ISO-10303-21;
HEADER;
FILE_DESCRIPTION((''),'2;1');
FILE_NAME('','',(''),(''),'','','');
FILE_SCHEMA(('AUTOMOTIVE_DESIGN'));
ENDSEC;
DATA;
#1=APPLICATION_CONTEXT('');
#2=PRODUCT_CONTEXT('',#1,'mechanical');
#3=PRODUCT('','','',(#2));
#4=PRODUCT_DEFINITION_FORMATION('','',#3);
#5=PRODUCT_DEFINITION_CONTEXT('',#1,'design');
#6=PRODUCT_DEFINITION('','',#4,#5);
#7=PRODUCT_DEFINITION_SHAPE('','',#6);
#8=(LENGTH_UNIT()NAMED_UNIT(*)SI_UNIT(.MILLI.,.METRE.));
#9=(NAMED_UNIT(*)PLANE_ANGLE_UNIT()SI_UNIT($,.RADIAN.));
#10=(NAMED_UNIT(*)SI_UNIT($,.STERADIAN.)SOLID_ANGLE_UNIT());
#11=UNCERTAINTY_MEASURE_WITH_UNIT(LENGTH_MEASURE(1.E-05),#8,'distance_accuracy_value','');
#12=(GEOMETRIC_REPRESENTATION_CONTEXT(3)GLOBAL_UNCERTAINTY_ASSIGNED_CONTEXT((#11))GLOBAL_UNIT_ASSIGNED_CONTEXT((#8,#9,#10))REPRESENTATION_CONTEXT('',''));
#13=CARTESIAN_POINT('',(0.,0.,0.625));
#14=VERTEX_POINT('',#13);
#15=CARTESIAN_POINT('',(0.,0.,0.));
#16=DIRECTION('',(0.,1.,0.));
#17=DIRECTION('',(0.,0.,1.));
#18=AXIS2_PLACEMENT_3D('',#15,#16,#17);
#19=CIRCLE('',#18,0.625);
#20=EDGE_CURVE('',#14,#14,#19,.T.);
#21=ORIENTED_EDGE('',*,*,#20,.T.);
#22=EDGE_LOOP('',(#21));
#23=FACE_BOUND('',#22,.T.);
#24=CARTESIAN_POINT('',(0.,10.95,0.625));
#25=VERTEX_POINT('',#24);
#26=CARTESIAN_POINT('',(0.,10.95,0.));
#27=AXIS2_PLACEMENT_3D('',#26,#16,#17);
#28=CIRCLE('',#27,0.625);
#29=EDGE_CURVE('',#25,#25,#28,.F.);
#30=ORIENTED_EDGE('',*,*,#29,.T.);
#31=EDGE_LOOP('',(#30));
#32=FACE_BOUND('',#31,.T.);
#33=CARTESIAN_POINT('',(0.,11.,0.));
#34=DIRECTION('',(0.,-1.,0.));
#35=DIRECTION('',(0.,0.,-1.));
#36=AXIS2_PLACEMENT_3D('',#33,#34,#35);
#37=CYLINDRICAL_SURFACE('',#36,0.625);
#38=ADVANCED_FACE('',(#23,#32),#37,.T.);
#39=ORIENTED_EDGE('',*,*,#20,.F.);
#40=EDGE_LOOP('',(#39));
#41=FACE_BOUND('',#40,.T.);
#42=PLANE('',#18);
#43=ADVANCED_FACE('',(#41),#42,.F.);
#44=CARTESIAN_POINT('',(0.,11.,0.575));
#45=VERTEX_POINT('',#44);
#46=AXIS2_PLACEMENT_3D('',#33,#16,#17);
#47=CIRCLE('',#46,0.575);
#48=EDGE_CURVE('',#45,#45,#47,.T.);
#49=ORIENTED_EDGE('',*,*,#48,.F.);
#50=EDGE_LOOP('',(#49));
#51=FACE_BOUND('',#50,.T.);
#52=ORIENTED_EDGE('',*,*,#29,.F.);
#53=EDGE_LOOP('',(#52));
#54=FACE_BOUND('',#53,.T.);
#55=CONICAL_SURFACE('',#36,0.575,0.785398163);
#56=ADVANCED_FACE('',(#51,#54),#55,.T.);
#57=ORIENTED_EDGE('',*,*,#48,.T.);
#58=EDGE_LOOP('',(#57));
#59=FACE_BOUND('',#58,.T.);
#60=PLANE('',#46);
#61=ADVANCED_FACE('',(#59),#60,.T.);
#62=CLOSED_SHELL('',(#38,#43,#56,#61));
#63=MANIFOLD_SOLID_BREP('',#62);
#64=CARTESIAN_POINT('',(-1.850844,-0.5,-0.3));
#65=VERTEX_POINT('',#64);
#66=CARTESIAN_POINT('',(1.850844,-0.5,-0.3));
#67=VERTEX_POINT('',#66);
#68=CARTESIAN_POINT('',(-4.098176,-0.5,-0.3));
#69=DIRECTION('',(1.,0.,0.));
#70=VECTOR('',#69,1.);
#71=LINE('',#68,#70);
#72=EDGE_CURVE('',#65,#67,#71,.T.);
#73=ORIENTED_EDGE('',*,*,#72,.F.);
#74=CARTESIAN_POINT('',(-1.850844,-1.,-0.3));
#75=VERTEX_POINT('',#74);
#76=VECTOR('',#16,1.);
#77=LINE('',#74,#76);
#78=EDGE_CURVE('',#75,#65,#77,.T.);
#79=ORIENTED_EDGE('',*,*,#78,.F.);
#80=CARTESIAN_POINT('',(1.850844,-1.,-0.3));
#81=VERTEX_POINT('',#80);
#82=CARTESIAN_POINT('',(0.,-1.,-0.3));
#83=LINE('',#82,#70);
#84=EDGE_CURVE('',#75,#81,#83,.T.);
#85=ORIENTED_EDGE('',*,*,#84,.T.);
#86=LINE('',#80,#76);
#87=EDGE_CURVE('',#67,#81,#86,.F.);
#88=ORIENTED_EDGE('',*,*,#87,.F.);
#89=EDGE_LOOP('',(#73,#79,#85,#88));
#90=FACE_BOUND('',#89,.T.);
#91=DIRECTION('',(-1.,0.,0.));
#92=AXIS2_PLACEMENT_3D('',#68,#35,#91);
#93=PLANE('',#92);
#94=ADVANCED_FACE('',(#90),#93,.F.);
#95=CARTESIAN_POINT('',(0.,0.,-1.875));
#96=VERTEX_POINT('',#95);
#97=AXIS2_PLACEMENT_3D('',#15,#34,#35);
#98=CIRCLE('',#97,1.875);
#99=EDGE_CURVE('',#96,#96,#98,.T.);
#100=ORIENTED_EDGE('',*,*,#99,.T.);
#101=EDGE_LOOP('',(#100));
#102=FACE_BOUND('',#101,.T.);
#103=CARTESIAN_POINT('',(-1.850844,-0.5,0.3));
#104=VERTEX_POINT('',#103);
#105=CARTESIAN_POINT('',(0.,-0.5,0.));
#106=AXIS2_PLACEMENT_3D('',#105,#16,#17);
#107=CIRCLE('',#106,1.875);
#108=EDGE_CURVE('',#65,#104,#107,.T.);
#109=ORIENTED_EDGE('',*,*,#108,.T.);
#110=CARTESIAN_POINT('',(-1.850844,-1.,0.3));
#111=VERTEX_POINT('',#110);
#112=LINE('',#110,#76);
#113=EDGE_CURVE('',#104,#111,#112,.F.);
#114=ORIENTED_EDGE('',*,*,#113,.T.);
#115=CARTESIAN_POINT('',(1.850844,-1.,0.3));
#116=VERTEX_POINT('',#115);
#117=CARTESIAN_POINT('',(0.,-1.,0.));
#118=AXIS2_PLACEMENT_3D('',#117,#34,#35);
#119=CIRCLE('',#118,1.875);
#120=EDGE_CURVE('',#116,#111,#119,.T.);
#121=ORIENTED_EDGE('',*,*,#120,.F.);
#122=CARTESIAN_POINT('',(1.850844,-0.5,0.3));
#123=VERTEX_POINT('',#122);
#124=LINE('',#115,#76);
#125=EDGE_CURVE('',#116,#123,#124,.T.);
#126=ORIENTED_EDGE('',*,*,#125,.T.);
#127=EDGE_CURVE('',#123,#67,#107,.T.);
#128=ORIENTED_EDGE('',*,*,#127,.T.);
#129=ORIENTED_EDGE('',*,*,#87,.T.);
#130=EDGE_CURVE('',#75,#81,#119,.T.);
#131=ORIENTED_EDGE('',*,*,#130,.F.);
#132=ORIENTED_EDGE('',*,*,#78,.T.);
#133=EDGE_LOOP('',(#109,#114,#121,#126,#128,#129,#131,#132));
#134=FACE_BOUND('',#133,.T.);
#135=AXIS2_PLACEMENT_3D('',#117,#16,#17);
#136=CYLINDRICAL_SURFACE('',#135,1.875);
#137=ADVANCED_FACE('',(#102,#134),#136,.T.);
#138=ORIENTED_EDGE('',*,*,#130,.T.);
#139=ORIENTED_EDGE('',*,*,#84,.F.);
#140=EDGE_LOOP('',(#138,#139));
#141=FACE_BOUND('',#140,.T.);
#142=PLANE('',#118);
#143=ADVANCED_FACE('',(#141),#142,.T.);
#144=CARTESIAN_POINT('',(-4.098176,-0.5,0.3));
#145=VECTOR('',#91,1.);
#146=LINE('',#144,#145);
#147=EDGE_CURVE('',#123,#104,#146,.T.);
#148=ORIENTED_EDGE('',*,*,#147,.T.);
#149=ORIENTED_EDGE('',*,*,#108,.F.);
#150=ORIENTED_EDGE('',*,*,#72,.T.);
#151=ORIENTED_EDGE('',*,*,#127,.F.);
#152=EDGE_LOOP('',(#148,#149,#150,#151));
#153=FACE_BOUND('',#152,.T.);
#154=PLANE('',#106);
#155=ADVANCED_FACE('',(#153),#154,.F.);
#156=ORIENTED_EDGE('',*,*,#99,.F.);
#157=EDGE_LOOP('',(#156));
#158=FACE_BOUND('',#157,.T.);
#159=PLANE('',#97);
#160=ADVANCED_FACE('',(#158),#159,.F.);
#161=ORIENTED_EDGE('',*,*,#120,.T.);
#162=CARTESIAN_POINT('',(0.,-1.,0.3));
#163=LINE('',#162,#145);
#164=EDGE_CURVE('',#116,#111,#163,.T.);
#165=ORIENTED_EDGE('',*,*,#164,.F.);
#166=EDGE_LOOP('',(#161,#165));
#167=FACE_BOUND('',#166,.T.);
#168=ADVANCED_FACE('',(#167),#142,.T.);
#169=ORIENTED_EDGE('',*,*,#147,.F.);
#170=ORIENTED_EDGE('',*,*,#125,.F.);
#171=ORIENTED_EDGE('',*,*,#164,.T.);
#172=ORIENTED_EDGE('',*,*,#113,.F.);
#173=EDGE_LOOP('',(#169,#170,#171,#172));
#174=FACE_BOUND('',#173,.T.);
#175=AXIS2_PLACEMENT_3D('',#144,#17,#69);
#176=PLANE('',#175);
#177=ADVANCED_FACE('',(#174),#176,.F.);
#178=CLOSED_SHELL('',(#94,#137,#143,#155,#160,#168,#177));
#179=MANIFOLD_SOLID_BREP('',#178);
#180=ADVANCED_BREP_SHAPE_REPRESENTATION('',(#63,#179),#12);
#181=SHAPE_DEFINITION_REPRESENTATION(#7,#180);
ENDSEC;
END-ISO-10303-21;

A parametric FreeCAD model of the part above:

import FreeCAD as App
import Part
import Sketcher

V = App.Vector


def edges_at(feature, points):
    """Names of the edges that pass closest to the given points."""
    edges = feature.Shape.Edges
    near = lambda p: min(range(len(edges)), key=lambda i: edges[i].distToShape(Part.Vertex(*p))[0])
    return sorted({f"Edge{near(p) + 1}" for p in points})


def add_polygon(sketch, points):
    """Adds a closed chain of lines whose ends are joined by coincident constraints."""
    first, n = sketch.GeometryCount, len(points)
    for a, b in zip(points, points[1:] + points[:1]):
        sketch.addGeometry(Part.LineSegment(App.Vector(*a, 0), App.Vector(*b, 0)), False)
    for i in range(n):
        sketch.addConstraint(Sketcher.Constraint("Coincident", first + i, 2, first + (i + 1) % n, 1))

doc = App.newDocument("Part")
body = doc.addObject("PartDesign::Body", "Body")

sketch1 = doc.addObject("Sketcher::SketchObject", "Sketch")
body.addObject(sketch1)
sketch1.AttachmentSupport = (doc.XZ_Plane, [""])
sketch1.MapMode = "FlatFace"
sketch1.addGeometry(Part.Circle(V(0, 0, 0), V(0, 0, 1), 0.6), False)
sketch1.addConstraint([
    Sketcher.Constraint("Coincident", 0, 3, -1, 1),
    Sketcher.Constraint("Diameter", 0, 1.25),
])
pad1 = doc.addObject("PartDesign::Pad", "Pad")
body.addObject(pad1)
pad1.Profile = sketch1
pad1.Length = 11
pad1.Reversed = True
doc.recompute()

chamfer = doc.addObject("PartDesign::Chamfer", "Chamfer")
body.addObject(chamfer)
chamfer.Base = (pad1, edges_at(pad1, [(-0.625, 11, 0)]))
chamfer.Size = 0.05
body2 = doc.addObject("PartDesign::Body", "Body001")

sketch2 = doc.addObject("Sketcher::SketchObject", "Sketch001")
body2.addObject(sketch2)
sketch2.AttachmentSupport = (doc.getObject("XZ_Plane001"), [""])
sketch2.MapMode = "FlatFace"
sketch2.addGeometry(Part.Circle(V(0, 0, 0), V(0, 0, 1), 1.9), False)
sketch2.addConstraint([
    Sketcher.Constraint("Coincident", 0, 3, -1, 1),
    Sketcher.Constraint("Diameter", 0, 3.75),
])
pad2 = doc.addObject("PartDesign::Pad", "Pad001")
body2.addObject(pad2)
pad2.Profile = sketch2
pad2.Length = 1

sketch3 = doc.addObject("Sketcher::SketchObject", "Sketch002")
body2.addObject(sketch3)
sketch3.AttachmentSupport = (doc.getObject("XZ_Plane001"), [""])
sketch3.MapMode = "FlatFace"
sketch3.AttachmentOffset = App.Placement(V(0, 0, 1), App.Rotation())
add_polygon(sketch3, [(-4.1, 0.3), (-4.1, -0.3), (4.1, -0.3), (4.1, 0.3)])
sketch3.addConstraint([
    Sketcher.Constraint("Vertical", 0),
    Sketcher.Constraint("Horizontal", 1),
    Sketcher.Constraint("Vertical", 2),
    Sketcher.Constraint("Horizontal", 3),
    Sketcher.Constraint("Symmetric", 0, 2, 2, 2, -1, 1),
    Sketcher.Constraint("DistanceY", 0, 2, 0, 1, 0.6),
    Sketcher.Constraint("DistanceX", 1, 1, 1, 2, 8.196352),
])
pocket1 = doc.addObject("PartDesign::Pocket", "Pocket")
body2.addObject(pocket1)
pocket1.Profile = sketch3
pocket1.Length = 0.5

doc.recompute()
